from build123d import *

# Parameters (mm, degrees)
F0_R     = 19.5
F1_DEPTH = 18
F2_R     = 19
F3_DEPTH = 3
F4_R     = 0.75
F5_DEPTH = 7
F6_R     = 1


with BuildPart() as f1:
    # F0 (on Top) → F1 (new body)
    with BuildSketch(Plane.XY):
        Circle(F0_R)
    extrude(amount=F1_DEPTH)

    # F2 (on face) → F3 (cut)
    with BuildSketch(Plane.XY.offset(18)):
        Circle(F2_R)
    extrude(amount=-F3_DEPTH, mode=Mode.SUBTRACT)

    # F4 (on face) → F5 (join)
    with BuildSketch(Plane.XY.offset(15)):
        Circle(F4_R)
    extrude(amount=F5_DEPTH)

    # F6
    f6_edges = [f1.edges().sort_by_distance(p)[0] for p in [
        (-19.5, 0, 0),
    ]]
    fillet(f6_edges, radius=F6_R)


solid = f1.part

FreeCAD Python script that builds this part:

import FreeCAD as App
import Part
import Sketcher


def edges_at(feature, points):
    """Names of the edges that pass closest to the given points."""
    edges = feature.Shape.Edges
    near = lambda p: min(range(len(edges)), key=lambda i: edges[i].distToShape(Part.Vertex(*p))[0])
    return sorted({f"Edge{near(p) + 1}" for p in points})

doc = App.newDocument("Part")
body = doc.addObject("PartDesign::Body", "Body")

sketch1 = body.newObject("Sketcher::SketchObject", "Sketch")
sketch1.AttachmentSupport = (doc.getObject("XY_Plane"), [""])
sketch1.MapMode = "FlatFace"
sketch1.addGeometry(Part.Circle(App.Vector(0, 0, 0), App.Vector(0, 0, 1), 20), False)
sketch1.addConstraint([
    Sketcher.Constraint("Coincident", 0, 3, -1, 1),
    Sketcher.Constraint("Diameter", 0, 39.0),
])
pad1 = body.newObject("PartDesign::Pad", "Pad")
pad1.Profile = sketch1
pad1.Length = 18

sketch2 = body.newObject("Sketcher::SketchObject", "Sketch001")
sketch2.AttachmentSupport = (doc.getObject("XY_Plane"), [""])
sketch2.MapMode = "FlatFace"
sketch2.AttachmentOffset = App.Placement(App.Vector(0, 0, 18), App.Rotation())
sketch2.addGeometry(Part.Circle(App.Vector(0, 0, 0), App.Vector(0, 0, 1), 19), False)
sketch2.addConstraint([
    Sketcher.Constraint("Coincident", 0, 3, -1, 1),
    Sketcher.Constraint("Diameter", 0, 38.0),
])
pocket1 = body.newObject("PartDesign::Pocket", "Pocket")
pocket1.Profile = sketch2
pocket1.Length = 3

sketch3 = body.newObject("Sketcher::SketchObject", "Sketch002")
sketch3.AttachmentSupport = (doc.getObject("XY_Plane"), [""])
sketch3.MapMode = "FlatFace"
sketch3.AttachmentOffset = App.Placement(App.Vector(0, 0, 15), App.Rotation())
sketch3.addGeometry(Part.Circle(App.Vector(0, 0, 0), App.Vector(0, 0, 1), 0.8), False)
sketch3.addConstraint([
    Sketcher.Constraint("Coincident", 0, 3, -1, 1),
    Sketcher.Constraint("Diameter", 0, 1.5),
])
pad2 = body.newObject("PartDesign::Pad", "Pad001")
pad2.Profile = sketch3
pad2.Length = 7
doc.recompute()

fillet = body.newObject("PartDesign::Fillet", "Fillet")
fillet.Base = (pad2, edges_at(pad2, [(-19.5, 0, 0)]))
fillet.Radius = 1

doc.recompute()
